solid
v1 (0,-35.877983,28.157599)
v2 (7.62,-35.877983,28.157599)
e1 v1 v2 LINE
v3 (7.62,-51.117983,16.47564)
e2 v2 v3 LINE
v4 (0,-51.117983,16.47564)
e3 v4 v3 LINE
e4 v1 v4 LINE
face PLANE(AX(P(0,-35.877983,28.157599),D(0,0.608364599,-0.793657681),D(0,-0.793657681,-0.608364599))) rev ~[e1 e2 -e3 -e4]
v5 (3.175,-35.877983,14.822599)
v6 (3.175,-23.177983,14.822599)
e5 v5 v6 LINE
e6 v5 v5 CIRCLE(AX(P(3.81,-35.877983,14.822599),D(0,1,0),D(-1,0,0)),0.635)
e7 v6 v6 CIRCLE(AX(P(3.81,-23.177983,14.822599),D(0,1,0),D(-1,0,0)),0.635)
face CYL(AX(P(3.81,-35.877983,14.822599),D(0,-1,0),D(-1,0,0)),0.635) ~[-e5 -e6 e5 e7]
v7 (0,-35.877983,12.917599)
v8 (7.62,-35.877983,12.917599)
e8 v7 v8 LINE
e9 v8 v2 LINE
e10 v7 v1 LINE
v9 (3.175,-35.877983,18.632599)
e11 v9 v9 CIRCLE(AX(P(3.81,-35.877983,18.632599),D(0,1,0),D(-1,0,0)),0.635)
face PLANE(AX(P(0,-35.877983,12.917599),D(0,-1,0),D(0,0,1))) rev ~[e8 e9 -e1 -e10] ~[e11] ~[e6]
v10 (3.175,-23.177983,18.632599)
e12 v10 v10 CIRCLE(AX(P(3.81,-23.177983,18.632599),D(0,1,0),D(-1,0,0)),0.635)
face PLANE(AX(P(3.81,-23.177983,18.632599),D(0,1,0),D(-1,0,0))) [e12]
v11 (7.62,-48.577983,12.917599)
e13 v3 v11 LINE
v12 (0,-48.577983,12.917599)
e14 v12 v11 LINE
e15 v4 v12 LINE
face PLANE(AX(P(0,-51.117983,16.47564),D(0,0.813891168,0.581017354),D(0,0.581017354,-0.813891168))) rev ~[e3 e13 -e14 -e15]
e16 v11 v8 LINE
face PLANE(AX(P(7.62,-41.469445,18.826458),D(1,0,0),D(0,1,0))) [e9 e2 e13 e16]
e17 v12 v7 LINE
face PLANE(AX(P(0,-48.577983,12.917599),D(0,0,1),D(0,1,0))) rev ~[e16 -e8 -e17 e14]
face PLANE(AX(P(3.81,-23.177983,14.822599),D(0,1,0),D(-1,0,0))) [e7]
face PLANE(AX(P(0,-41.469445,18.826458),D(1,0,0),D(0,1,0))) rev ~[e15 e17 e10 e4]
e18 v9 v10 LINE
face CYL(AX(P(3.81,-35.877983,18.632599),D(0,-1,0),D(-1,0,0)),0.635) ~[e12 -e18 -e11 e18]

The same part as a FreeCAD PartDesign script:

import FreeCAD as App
import Part
import Sketcher

V = App.Vector
Q = App.Units.Quantity

doc = App.newDocument("Part")
params = doc.addObject("Spreadsheet::Sheet", "Params")
for row, (alias, value) in enumerate([
    ("sketch1_width", "0.5 in"),
    ("sketch1_height", "0.6 in"),
    ("pad1_length", "0.3 in"),
    ("sketch2_diameter", "0.05 in"),
    ("pad2_length", "0.5 in"),
], start=1):
    params.set(f"A{row}", alias)
    params.set(f"B{row}", "=" + value)
    params.setAlias(f"B{row}", alias)

body = doc.addObject("PartDesign::Body", "Body")

# Sketch on YZ plane
sketch1 = doc.addObject("Sketcher::SketchObject", "Sketch")
body.addObject(sketch1)
sketch1.AttachmentSupport = (doc.YZ_Plane, [""])
sketch1.MapMode = "FlatFace"
sketch1.addGeometry(Part.LineSegment(V(-51.1, 16.5, 0), V(-48.6, 12.9, 0)), False)
sketch1.addGeometry(Part.LineSegment(V(-48.6, 12.9, 0), V(-35.9, 12.9, 0)), False)
sketch1.addGeometry(Part.LineSegment(V(-35.9, 12.9, 0), V(-35.9, 28.2, 0)), False)
sketch1.addGeometry(Part.LineSegment(V(-35.9, 28.2, 0), V(-51.1, 16.5, 0)), False)
sketch1.addConstraint(Sketcher.Constraint("Coincident", 0, 2, 1, 1))
sketch1.addConstraint(Sketcher.Constraint("Coincident", 1, 2, 2, 1))
sketch1.addConstraint(Sketcher.Constraint("Coincident", 2, 2, 3, 1))
sketch1.addConstraint(Sketcher.Constraint("Coincident", 3, 2, 0, 1))
sketch1.addConstraint(Sketcher.Constraint("Horizontal", 1))
sketch1.addConstraint(Sketcher.Constraint("Vertical", 2))
sketch1.addConstraint(Sketcher.Constraint("DistanceX", 1, 1, 1, 2, Q("0.5 in")))
sketch1.addConstraint(Sketcher.Constraint("DistanceY", 2, 1, 2, 2, Q("0.6 in")))
sketch1.addConstraint(Sketcher.Constraint("DistanceX", 3, 2, 0, 2, Q("0.1 in")))
sketch1.addConstraint(Sketcher.Constraint("DistanceY", -1, 1, 0, 2, 12.917599))
sketch1.addConstraint(Sketcher.Constraint("DistanceY", -1, 1, 3, 2, 16.47564))
sketch1.addConstraint(Sketcher.Constraint("DistanceX", 0, 2, -1, 1, 48.577983))
sketch1.setExpression("Constraints[6]", "Params.sketch1_width")
sketch1.setExpression("Constraints[7]", "Params.sketch1_height")
pad1 = doc.addObject("PartDesign::Pad", "Pad")
body.addObject(pad1)
pad1.Profile = sketch1
pad1.setExpression("Length", "Params.pad1_length")

# Sketch on XZ plane
sketch2 = doc.addObject("Sketcher::SketchObject", "Sketch001")
body.addObject(sketch2)
sketch2.AttachmentSupport = (doc.XZ_Plane, [""])
sketch2.MapMode = "FlatFace"
sketch2.AttachmentOffset = App.Placement(V(0, 0, 35.877983), App.Rotation())
sketch2.addGeometry(Part.Circle(V(3.8, 18.6, 0), V(0, 0, 1), 0.6), False)
sketch2.addGeometry(Part.Circle(V(3.8, 14.8, 0), V(0, 0, 1), 0.6), False)
sketch2.addConstraint(Sketcher.Constraint("Equal", 0, 1))
sketch2.addConstraint(Sketcher.Constraint("Vertical", 0, 3, 1, 3))
sketch2.addConstraint(Sketcher.Constraint("Diameter", 0, Q("0.05 in")))
sketch2.addConstraint(Sketcher.Constraint("DistanceX", -1, 1, 0, 3, Q("0.15 in")))
sketch2.addConstraint(Sketcher.Constraint("DistanceY", 1, 3, 0, 3, Q("0.15 in")))
sketch2.addConstraint(Sketcher.Constraint("DistanceY", -1, 1, 0, 3, 18.632599))
sketch2.setExpression("Constraints[2]", "Params.sketch2_diameter")
pad2 = doc.addObject("PartDesign::Pad", "Pad001")
body.addObject(pad2)
pad2.Profile = sketch2
pad2.setExpression("Length", "Params.pad2_length")
pad2.Reversed = True

doc.recompute()
